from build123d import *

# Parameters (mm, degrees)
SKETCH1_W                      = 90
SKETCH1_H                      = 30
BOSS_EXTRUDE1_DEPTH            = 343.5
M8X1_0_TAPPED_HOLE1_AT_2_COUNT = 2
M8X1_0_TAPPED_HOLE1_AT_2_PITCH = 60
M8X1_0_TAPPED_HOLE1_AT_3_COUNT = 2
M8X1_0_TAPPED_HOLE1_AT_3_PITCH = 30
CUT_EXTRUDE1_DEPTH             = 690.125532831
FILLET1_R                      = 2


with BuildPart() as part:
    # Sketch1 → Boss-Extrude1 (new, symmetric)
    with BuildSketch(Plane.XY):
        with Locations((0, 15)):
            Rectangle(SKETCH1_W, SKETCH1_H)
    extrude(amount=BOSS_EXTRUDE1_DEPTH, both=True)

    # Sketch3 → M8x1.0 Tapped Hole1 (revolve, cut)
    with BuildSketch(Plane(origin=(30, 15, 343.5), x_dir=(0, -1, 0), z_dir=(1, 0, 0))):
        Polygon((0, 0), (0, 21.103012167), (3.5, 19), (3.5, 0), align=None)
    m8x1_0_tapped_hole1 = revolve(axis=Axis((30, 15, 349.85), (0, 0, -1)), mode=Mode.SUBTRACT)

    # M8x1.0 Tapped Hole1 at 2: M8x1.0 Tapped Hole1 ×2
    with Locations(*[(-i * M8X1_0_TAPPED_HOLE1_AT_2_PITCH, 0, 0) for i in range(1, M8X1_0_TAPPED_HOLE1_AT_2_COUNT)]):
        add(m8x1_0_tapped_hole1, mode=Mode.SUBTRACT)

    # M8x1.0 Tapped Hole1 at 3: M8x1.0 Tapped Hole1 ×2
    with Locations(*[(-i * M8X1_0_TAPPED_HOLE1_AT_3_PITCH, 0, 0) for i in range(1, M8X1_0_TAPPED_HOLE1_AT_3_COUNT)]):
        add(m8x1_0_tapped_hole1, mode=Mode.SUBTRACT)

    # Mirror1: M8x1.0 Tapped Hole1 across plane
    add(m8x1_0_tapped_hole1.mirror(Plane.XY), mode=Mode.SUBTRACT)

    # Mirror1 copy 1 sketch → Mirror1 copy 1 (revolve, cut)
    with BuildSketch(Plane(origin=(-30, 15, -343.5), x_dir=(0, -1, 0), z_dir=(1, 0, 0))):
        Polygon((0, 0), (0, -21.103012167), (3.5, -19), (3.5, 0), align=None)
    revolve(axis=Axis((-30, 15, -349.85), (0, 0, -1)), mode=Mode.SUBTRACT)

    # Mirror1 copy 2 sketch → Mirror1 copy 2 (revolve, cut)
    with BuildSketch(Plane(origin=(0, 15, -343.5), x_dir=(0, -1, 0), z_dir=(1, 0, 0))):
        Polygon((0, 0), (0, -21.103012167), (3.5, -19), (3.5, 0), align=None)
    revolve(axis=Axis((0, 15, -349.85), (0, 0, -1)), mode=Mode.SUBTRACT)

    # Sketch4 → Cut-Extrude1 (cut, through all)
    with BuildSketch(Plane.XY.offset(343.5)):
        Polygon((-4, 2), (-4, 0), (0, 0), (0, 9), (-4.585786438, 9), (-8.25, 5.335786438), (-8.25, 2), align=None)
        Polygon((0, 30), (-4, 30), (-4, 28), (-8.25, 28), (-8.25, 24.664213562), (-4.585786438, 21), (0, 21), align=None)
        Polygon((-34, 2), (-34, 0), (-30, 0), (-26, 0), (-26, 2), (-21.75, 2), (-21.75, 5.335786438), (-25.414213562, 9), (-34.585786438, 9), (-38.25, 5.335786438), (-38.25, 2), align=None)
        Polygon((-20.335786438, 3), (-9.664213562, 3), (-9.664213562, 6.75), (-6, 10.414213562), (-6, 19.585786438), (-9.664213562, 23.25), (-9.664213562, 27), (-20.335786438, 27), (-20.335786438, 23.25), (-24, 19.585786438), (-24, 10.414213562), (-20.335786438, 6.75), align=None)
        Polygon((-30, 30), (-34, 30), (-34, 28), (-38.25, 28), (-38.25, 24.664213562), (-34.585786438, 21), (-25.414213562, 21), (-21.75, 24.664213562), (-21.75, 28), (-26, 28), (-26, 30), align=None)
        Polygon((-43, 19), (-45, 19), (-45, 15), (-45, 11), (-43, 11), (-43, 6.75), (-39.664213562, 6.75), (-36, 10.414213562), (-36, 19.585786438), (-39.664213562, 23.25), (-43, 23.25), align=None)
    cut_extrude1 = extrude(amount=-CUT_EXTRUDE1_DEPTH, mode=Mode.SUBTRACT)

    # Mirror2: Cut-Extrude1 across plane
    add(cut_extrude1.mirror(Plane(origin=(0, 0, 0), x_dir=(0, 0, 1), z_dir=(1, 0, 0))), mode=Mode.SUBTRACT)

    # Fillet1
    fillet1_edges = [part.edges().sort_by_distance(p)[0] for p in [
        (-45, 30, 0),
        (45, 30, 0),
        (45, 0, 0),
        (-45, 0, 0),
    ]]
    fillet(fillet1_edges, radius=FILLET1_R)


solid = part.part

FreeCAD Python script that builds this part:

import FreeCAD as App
import Part
import Sketcher
Q = App.Units.Quantity


def edges_at(feature, points):
    """Names of the edges that pass closest to the given points."""
    edges = feature.Shape.Edges
    near = lambda p: min(range(len(edges)), key=lambda i: edges[i].distToShape(Part.Vertex(*p))[0])
    return sorted({f"Edge{near(p) + 1}" for p in points})


def add_polygon(sketch, points):
    """Adds a closed chain of lines whose ends are joined by coincident constraints."""
    first, n = sketch.GeometryCount, len(points)
    for a, b in zip(points, points[1:] + points[:1]):
        sketch.addGeometry(Part.LineSegment(App.Vector(*a, 0), App.Vector(*b, 0)), False)
    for i in range(n):
        sketch.addConstraint(Sketcher.Constraint("Coincident", first + i, 2, first + (i + 1) % n, 1))

doc = App.newDocument("Part")
body = doc.addObject("PartDesign::Body", "Body")

sketch1 = body.newObject("Sketcher::SketchObject", "Sketch")
sketch1.AttachmentSupport = (doc.getObject("XY_Plane"), [""])
sketch1.MapMode = "FlatFace"
add_polygon(sketch1, [(-45, 30), (-45, 0), (45, 0), (45, 30)])
sketch1.addConstraint(Sketcher.Constraint("Vertical", 0))
sketch1.addConstraint(Sketcher.Constraint("Horizontal", 1))
sketch1.addConstraint(Sketcher.Constraint("Vertical", 2))
sketch1.addConstraint(Sketcher.Constraint("Horizontal", 3))
sketch1.addConstraint(Sketcher.Constraint("Symmetric", 0, 2, 1, 2, -1, 1))
sketch1.addConstraint(Sketcher.Constraint("DistanceX", 1, 1, 1, 2, Q("90 mm")))
sketch1.addConstraint(Sketcher.Constraint("DistanceY", 0, 2, 0, 1, Q("30 mm")))
pad1 = body.newObject("PartDesign::Pad", "Pad")
pad1.Profile = sketch1
pad1.Length = 687
pad1.Midplane = True

sketch2 = body.newObject("Sketcher::SketchObject", "Sketch001")
sketch2.AttachmentSupport = (doc.getObject("YZ_Plane"), [""])
sketch2.MapMode = "FlatFace"
sketch2.AttachmentOffset = App.Placement(App.Vector(0, 0, 30), App.Rotation())
add_polygon(sketch2, [(15, 322.4), (15, 343.5), (11.5, 343.5), (11.5, 324.5)])
sketch2.addGeometry(Part.LineSegment(App.Vector(15, 343.5, 0), App.Vector(15, 322.4, 0)), True)
sketch2.addConstraint(Sketcher.Constraint("Vertical", 0))
sketch2.addConstraint(Sketcher.Constraint("Horizontal", 1))
sketch2.addConstraint(Sketcher.Constraint("Vertical", 2))
sketch2.addConstraint(Sketcher.Constraint("Vertical", 4))
sketch2.addConstraint(Sketcher.Constraint("Coincident", 4, 1, 0, 2))
sketch2.addConstraint(Sketcher.Constraint("Equal", 0, 4))
sketch2.addConstraint(Sketcher.Constraint("DistanceY", 2, 2, 2, 1, Q("19 mm")))
sketch2.addConstraint(Sketcher.Constraint("Angle", 3, Q("-31 deg")))
sketch2.addConstraint(Sketcher.Constraint("DistanceX", 1, 2, 1, 1, Q("3.5 mm")))
sketch2.addConstraint(Sketcher.Constraint("DistanceX", -1, 1, 0, 2, Q("15 mm")))
sketch2.addConstraint(Sketcher.Constraint("DistanceY", -1, 1, 0, 2, Q("343.5 mm")))
groove = body.newObject("PartDesign::Groove", "Groove")
groove.Profile = sketch2
groove.ReferenceAxis = (sketch2, ["Axis0"])
groove.Angle = 360
doc.recompute()

linearpattern = body.newObject("PartDesign::LinearPattern", "LinearPattern")
linearpattern.Originals = [groove]
linearpattern.Direction = (doc.getObject("X_Axis"), [""])
linearpattern.Mode = "offset"
linearpattern.Offset = 60
linearpattern.Occurrences = 2
linearpattern.Reversed = True
body.Tip = linearpattern
doc.recompute()

linearpattern2 = body.newObject("PartDesign::LinearPattern", "LinearPattern001")
linearpattern2.Originals = [groove]
linearpattern2.Direction = (doc.getObject("X_Axis"), [""])
linearpattern2.Mode = "offset"
linearpattern2.Offset = 30
linearpattern2.Occurrences = 2
linearpattern2.Reversed = True
body.Tip = linearpattern2
doc.recompute()

mirrored = body.newObject("PartDesign::Mirrored", "Mirrored")
mirrored.Originals = [groove]
mirrored.MirrorPlane = (doc.getObject("XY_Plane"), [""])
body.Tip = mirrored

sketch3 = body.newObject("Sketcher::SketchObject", "Sketch002")
sketch3.AttachmentSupport = (doc.getObject("YZ_Plane"), [""])
sketch3.MapMode = "FlatFace"
sketch3.AttachmentOffset = App.Placement(App.Vector(0, 0, -30), App.Rotation())
add_polygon(sketch3, [(15, -343.5), (15, -322.4), (11.5, -324.5), (11.5, -343.5)])
sketch3.addGeometry(Part.LineSegment(App.Vector(15, -322.4, 0), App.Vector(15, -343.5, 0)), True)
sketch3.addConstraint(Sketcher.Constraint("Vertical", 0))
sketch3.addConstraint(Sketcher.Constraint("Vertical", 2))
sketch3.addConstraint(Sketcher.Constraint("Horizontal", 3))
sketch3.addConstraint(Sketcher.Constraint("Vertical", 4))
sketch3.addConstraint(Sketcher.Constraint("Coincident", 4, 1, 0, 2))
sketch3.addConstraint(Sketcher.Constraint("Horizontal", 2, 2, 4, 2))
sketch3.addConstraint(Sketcher.Constraint("DistanceY", 2, 2, 2, 1, Q("19 mm")))
sketch3.addConstraint(Sketcher.Constraint("Angle", 1, Q("-149 deg")))
sketch3.addConstraint(Sketcher.Constraint("DistanceX", 3, 1, 3, 2, Q("3.5 mm")))
sketch3.addConstraint(Sketcher.Constraint("DistanceX", -1, 1, 0, 2, Q("15 mm")))
sketch3.addConstraint(Sketcher.Constraint("DistanceY", 1, 2, -1, 1, Q("324.5 mm")))
groove2 = body.newObject("PartDesign::Groove", "Groove001")
groove2.Profile = sketch3
groove2.ReferenceAxis = (sketch3, ["Axis0"])
groove2.Angle = 360

sketch4 = body.newObject("Sketcher::SketchObject", "Sketch003")
sketch4.AttachmentSupport = (doc.getObject("YZ_Plane"), [""])
sketch4.MapMode = "FlatFace"
add_polygon(sketch4, [(15, -343.5), (15, -322.4), (11.5, -324.5), (11.5, -343.5)])
sketch4.addGeometry(Part.LineSegment(App.Vector(15, -322.4, 0), App.Vector(15, -343.5, 0)), True)
sketch4.addConstraint(Sketcher.Constraint("Vertical", 0))
sketch4.addConstraint(Sketcher.Constraint("Vertical", 2))
sketch4.addConstraint(Sketcher.Constraint("Horizontal", 3))
sketch4.addConstraint(Sketcher.Constraint("Vertical", 4))
sketch4.addConstraint(Sketcher.Constraint("Coincident", 4, 1, 0, 2))
sketch4.addConstraint(Sketcher.Constraint("Horizontal", 2, 2, 4, 2))
sketch4.addConstraint(Sketcher.Constraint("DistanceY", 2, 2, 2, 1, Q("19 mm")))
sketch4.addConstraint(Sketcher.Constraint("Angle", 1, Q("-149 deg")))
sketch4.addConstraint(Sketcher.Constraint("DistanceX", 3, 1, 3, 2, Q("3.5 mm")))
sketch4.addConstraint(Sketcher.Constraint("DistanceX", -1, 1, 0, 2, Q("15 mm")))
sketch4.addConstraint(Sketcher.Constraint("DistanceY", 1, 2, -1, 1, Q("324.5 mm")))
groove3 = body.newObject("PartDesign::Groove", "Groove002")
groove3.Profile = sketch4
groove3.ReferenceAxis = (sketch4, ["Axis0"])
groove3.Angle = 360

sketch5 = body.newObject("Sketcher::SketchObject", "Sketch004")
sketch5.AttachmentSupport = (doc.getObject("XY_Plane"), [""])
sketch5.MapMode = "FlatFace"
sketch5.AttachmentOffset = App.Placement(App.Vector(0, 0, 343.5), App.Rotation())
add_polygon(sketch5, [(-4, 2), (-4, 0), (0, 0), (0, 9), (-4.6, 9), (-8.2, 5.3), (-8.2, 2)])
add_polygon(sketch5, [(0, 30), (-4, 30), (-4, 28), (-8.2, 28), (-8.2, 24.7), (-4.6, 21), (0, 21)])
add_polygon(sketch5, [(-34, 2), (-34, 0), (-26, 0), (-26, 2), (-21.8, 2), (-21.8, 5.3), (-25.4, 9), (-34.6, 9), (-38.2, 5.3), (-38.2, 2)])
add_polygon(sketch5, [(-20.3, 3), (-9.7, 3), (-9.7, 6.8), (-6, 10.4), (-6, 19.6), (-9.7, 23.2), (-9.7, 27), (-20.3, 27), (-20.3, 23.2), (-24, 19.6), (-24, 10.4), (-20.3, 6.8)])
add_polygon(sketch5, [(-34, 30), (-34, 28), (-38.2, 28), (-38.2, 24.7), (-34.6, 21), (-25.4, 21), (-21.8, 24.7), (-21.8, 28), (-26, 28), (-26, 30)])
add_polygon(sketch5, [(-43, 19), (-45, 19), (-45, 11), (-43, 11), (-43, 6.8), (-39.7, 6.8), (-36, 10.4), (-36, 19.6), (-39.7, 23.2), (-43, 23.2)])
sketch5.addConstraint(Sketcher.Constraint("Vertical", 0))
sketch5.addConstraint(Sketcher.Constraint("Horizontal", 1))
sketch5.addConstraint(Sketcher.Constraint("Vertical", 2))
sketch5.addConstraint(Sketcher.Constraint("Horizontal", 3))
sketch5.addConstraint(Sketcher.Constraint("Vertical", 5))
sketch5.addConstraint(Sketcher.Constraint("Horizontal", 6))
sketch5.addConstraint(Sketcher.Constraint("Horizontal", 7))
sketch5.addConstraint(Sketcher.Constraint("Vertical", 8))
sketch5.addConstraint(Sketcher.Constraint("Horizontal", 9))
sketch5.addConstraint(Sketcher.Constraint("Vertical", 10))
sketch5.addConstraint(Sketcher.Constraint("Horizontal", 12))
sketch5.addConstraint(Sketcher.Constraint("Vertical", 13))
sketch5.addConstraint(Sketcher.Constraint("Vertical", 14))
sketch5.addConstraint(Sketcher.Constraint("Horizontal", 15))
sketch5.addConstraint(Sketcher.Constraint("Vertical", 16))
sketch5.addConstraint(Sketcher.Constraint("Horizontal", 17))
sketch5.addConstraint(Sketcher.Constraint("Vertical", 18))
sketch5.addConstraint(Sketcher.Constraint("Horizontal", 20))
sketch5.addConstraint(Sketcher.Constraint("Vertical", 22))
sketch5.addConstraint(Sketcher.Constraint("Horizontal", 23))
sketch5.addConstraint(Sketcher.Constraint("Horizontal", 24))
sketch5.addConstraint(Sketcher.Constraint("Vertical", 25))
sketch5.addConstraint(Sketcher.Constraint("Vertical", 27))
sketch5.addConstraint(Sketcher.Constraint("Vertical", 29))
sketch5.addConstraint(Sketcher.Constraint("Horizontal", 30))
sketch5.addConstraint(Sketcher.Constraint("Vertical", 31))
sketch5.addConstraint(Sketcher.Constraint("Vertical", 33))
sketch5.addConstraint(Sketcher.Constraint("Vertical", 35))
sketch5.addConstraint(Sketcher.Constraint("Vertical", 36))
sketch5.addConstraint(Sketcher.Constraint("Horizontal", 37))
sketch5.addConstraint(Sketcher.Constraint("Vertical", 38))
sketch5.addConstraint(Sketcher.Constraint("Horizontal", 40))
sketch5.addConstraint(Sketcher.Constraint("Vertical", 42))
sketch5.addConstraint(Sketcher.Constraint("Horizontal", 43))
sketch5.addConstraint(Sketcher.Constraint("Vertical", 44))
sketch5.addConstraint(Sketcher.Constraint("Horizontal", 45))
sketch5.addConstraint(Sketcher.Constraint("Horizontal", 46))
sketch5.addConstraint(Sketcher.Constraint("Vertical", 47))
sketch5.addConstraint(Sketcher.Constraint("Horizontal", 48))
sketch5.addConstraint(Sketcher.Constraint("Vertical", 49))
sketch5.addConstraint(Sketcher.Constraint("Horizontal", 50))
sketch5.addConstraint(Sketcher.Constraint("Vertical", 52))
sketch5.addConstraint(Sketcher.Constraint("Horizontal", 54))
sketch5.addConstraint(Sketcher.Constraint("Vertical", 55))
sketch5.addConstraint(Sketcher.Constraint("Coincident", 1, 2, -1, 1))
sketch5.addConstraint(Sketcher.Constraint("PointOnObject", 12, 2, -2))
sketch5.addConstraint(Sketcher.Constraint("PointOnObject", 14, 2, -1))
sketch5.addConstraint(Sketcher.Constraint("Perpendicular", 4, 11))
sketch5.addConstraint(Sketcher.Constraint("Parallel", 11, 19))
sketch5.addConstraint(Sketcher.Constraint("Perpendicular", 19, 21))
sketch5.addConstraint(Sketcher.Constraint("Parallel", 21, 26))
sketch5.addConstraint(Sketcher.Constraint("Perpendicular", 26, 28))
sketch5.addConstraint(Sketcher.Constraint("Perpendicular", 28, 32))
sketch5.addConstraint(Sketcher.Constraint("Perpendicular", 32, 34))
sketch5.addConstraint(Sketcher.Constraint("Parallel", 34, 39))
sketch5.addConstraint(Sketcher.Constraint("Perpendicular", 39, 41))
sketch5.addConstraint(Sketcher.Constraint("Parallel", 41, 51))
sketch5.addConstraint(Sketcher.Constraint("Perpendicular", 51, 53))
sketch5.addConstraint(Sketcher.Constraint("Horizontal", 6, 2, 16, 2))
sketch5.addConstraint(Sketcher.Constraint("Horizontal", 4, 2, 18, 2))
sketch5.addConstraint(Sketcher.Constraint("Horizontal", 3, 2, 19, 2))
sketch5.addConstraint(Sketcher.Constraint("Horizontal", 18, 2, 21, 2))
sketch5.addConstraint(Sketcher.Constraint("Horizontal", 17, 2, 22, 2))
sketch5.addConstraint(Sketcher.Constraint("Horizontal", 28, 2, 31, 2))
sketch5.addConstraint(Sketcher.Constraint("Horizontal", 27, 2, 32, 2))
sketch5.addConstraint(Sketcher.Constraint("Horizontal", 26, 2, 33, 2))
sketch5.addConstraint(Sketcher.Constraint("Horizontal", 25, 2, 34, 2))
sketch5.addConstraint(Sketcher.Constraint("Horizontal", 9, 2, 36, 2))
sketch5.addConstraint(Sketcher.Constraint("Horizontal", 10, 2, 38, 2))
sketch5.addConstraint(Sketcher.Constraint("Horizontal", 12, 2, 39, 2))
sketch5.addConstraint(Sketcher.Constraint("Horizontal", 38, 2, 41, 2))
sketch5.addConstraint(Sketcher.Constraint("Horizontal", 37, 2, 42, 2))
sketch5.addConstraint(Sketcher.Constraint("Horizontal", 13, 2, 44, 2))
sketch5.addConstraint(Sketcher.Constraint("Horizontal", 34, 2, 49, 2))
sketch5.addConstraint(Sketcher.Constraint("Horizontal", 33, 2, 51, 2))
sketch5.addConstraint(Sketcher.Constraint("Horizontal", 32, 2, 52, 2))
sketch5.addConstraint(Sketcher.Constraint("Horizontal", 31, 2, 53, 2))
sketch5.addConstraint(Sketcher.Constraint("Vertical", 6, 2, 7, 2))
sketch5.addConstraint(Sketcher.Constraint("Vertical", 5, 2, 9, 2))
sketch5.addConstraint(Sketcher.Constraint("Vertical", 3, 2, 11, 2))
sketch5.addConstraint(Sketcher.Constraint("Vertical", 25, 2, 28, 2))
sketch5.addConstraint(Sketcher.Constraint("Vertical", 31, 2, 34, 2))
sketch5.addConstraint(Sketcher.Constraint("Vertical", 23, 2, 36, 2))
sketch5.addConstraint(Sketcher.Constraint("Vertical", 22, 2, 37, 2))
sketch5.addConstraint(Sketcher.Constraint("Vertical", 19, 2, 40, 2))
sketch5.addConstraint(Sketcher.Constraint("Vertical", 16, 2, 43, 2))
sketch5.addConstraint(Sketcher.Constraint("Vertical", 49, 2, 54, 2))
sketch5.addConstraint(Sketcher.Constraint("Equal", 9, 17))
sketch5.addConstraint(Sketcher.Constraint("Equal", 17, 23))
sketch5.addConstraint(Sketcher.Constraint("Equal", 48, 0))
sketch5.addConstraint(Sketcher.Constraint("Equal", 54, 5))
sketch5.addConstraint(Sketcher.Constraint("Equal", 0, 8))
sketch5.addConstraint(Sketcher.Constraint("Equal", 5, 10))
sketch5.addConstraint(Sketcher.Constraint("Equal", 40, 27))
sketch5.addConstraint(Sketcher.Constraint("Equal", 25, 29))
sketch5.addConstraint(Sketcher.Constraint("Equal", 45, 47))
sketch5.addConstraint(Sketcher.Constraint("Equal", 43, 49))
sketch5.addConstraint(Sketcher.Constraint("Equal", 49, 55))
sketch5.addConstraint(Sketcher.Constraint("DistanceX", 1, 1, 1, 2, Q("4 mm")))
sketch5.addConstraint(Sketcher.Constraint("DistanceX", 15, 1, 15, 2, Q("8 mm")))
sketch5.addConstraint(Sketcher.Constraint("DistanceX", 46, 2, 46, 1, Q("2 mm")))
sketch5.addConstraint(Sketcher.Constraint("DistanceY", 2, 1, 2, 2, Q("9 mm")))
sketch5.addConstraint(Sketcher.Constraint("DistanceY", -1, 1, 7, 2, Q("30 mm")))
sketch5.addConstraint(Sketcher.Constraint("DistanceX", 14, 2, -1, 1, Q("34 mm")))
sketch5.addConstraint(Sketcher.Constraint("DistanceY", -1, 1, 24, 2, Q("3 mm")))
sketch5.addConstraint(Sketcher.Constraint("DistanceX", 26, 2, -1, 1, Q("6 mm")))
sketch5.addConstraint(Sketcher.Constraint("DistanceY", -1, 1, 29, 2, Q("27 mm")))
sketch5.addConstraint(Sketcher.Constraint("DistanceX", 32, 2, -1, 1, Q("24 mm")))
sketch5.addConstraint(Sketcher.Constraint("DistanceX", 46, 2, -1, 1, Q("45 mm")))
sketch5.addConstraint(Sketcher.Constraint("DistanceX", 6, 1, 6, 2, Q("4.25 mm")))
sketch5.addConstraint(Sketcher.Constraint("Distance", 4, Q("5.181981 mm")))
pocket1 = body.newObject("PartDesign::Pocket", "Pocket")
pocket1.Profile = sketch5
pocket1.Type = "ThroughAll"
doc.recompute()

mirrored2 = body.newObject("PartDesign::Mirrored", "Mirrored001")
mirrored2.Originals = [pocket1]
mirrored2.MirrorPlane = (doc.getObject("YZ_Plane"), [""])
body.Tip = mirrored2
doc.recompute()

fillet = body.newObject("PartDesign::Fillet", "Fillet")
fillet.Base = (mirrored2, edges_at(mirrored2, [
    (-45, 30, 0),
    (45, 30, 0),
    (45, 0, 0),
    (-45, 0, 0),
]))
fillet.Radius = 2

doc.recompute()
